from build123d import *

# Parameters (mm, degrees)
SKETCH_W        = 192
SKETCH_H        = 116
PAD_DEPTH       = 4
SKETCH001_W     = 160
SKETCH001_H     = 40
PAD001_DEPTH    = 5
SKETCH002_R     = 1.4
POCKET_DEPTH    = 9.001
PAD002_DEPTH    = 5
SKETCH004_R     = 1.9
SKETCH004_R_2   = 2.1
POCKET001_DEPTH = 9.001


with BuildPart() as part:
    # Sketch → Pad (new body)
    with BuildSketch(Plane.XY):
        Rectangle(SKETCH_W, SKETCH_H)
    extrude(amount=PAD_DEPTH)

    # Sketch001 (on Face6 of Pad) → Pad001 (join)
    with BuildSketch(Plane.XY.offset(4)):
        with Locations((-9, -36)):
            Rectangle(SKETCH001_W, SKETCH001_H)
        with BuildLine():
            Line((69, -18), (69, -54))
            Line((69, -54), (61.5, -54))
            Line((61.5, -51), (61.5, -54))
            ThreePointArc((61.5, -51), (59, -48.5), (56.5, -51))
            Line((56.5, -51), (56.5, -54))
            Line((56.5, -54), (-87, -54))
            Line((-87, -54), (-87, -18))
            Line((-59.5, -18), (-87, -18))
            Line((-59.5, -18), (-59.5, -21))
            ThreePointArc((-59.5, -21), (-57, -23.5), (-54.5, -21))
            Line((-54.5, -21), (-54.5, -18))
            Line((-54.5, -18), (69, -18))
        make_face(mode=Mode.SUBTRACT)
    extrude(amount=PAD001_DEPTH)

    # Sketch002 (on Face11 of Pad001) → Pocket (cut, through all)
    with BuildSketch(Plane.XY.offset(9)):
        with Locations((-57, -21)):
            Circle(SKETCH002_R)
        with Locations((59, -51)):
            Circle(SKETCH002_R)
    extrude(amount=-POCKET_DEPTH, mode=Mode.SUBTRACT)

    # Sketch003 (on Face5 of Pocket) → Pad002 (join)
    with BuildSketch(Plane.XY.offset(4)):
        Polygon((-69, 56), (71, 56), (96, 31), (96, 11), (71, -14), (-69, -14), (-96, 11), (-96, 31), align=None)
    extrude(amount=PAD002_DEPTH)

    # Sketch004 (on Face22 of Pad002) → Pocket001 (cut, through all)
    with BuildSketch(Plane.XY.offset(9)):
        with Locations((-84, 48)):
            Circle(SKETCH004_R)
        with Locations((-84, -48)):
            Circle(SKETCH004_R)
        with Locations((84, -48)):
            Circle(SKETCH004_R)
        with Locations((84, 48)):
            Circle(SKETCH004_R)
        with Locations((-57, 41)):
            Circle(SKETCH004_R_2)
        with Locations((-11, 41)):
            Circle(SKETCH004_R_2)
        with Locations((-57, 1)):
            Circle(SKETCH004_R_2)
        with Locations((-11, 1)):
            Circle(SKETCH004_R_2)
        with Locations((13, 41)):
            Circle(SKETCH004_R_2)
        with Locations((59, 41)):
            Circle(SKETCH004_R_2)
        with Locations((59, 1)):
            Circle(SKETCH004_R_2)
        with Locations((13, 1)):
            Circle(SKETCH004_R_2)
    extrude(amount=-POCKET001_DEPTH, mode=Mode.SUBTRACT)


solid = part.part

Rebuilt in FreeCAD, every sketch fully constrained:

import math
import FreeCAD as App
import Part
import Sketcher

doc = App.newDocument("Part")
body = doc.addObject("PartDesign::Body", "Body")

sketch1 = body.newObject("Sketcher::SketchObject", "Sketch")
sketch1.AttachmentSupport = (doc.getObject("XY_Plane"), [""])
sketch1.MapMode = "FlatFace"
sketch1.addGeometry([
    Part.LineSegment(App.Vector(-96, 58, 0), App.Vector(-96, -58, 0)),
    Part.LineSegment(App.Vector(-96, -58, 0), App.Vector(96, -58, 0)),
    Part.LineSegment(App.Vector(96, -58, 0), App.Vector(96, 58, 0)),
    Part.LineSegment(App.Vector(96, 58, 0), App.Vector(-96, 58, 0)),
], False)
sketch1.addConstraint([
    Sketcher.Constraint("Coincident", 0, 2, 1, 1),
    Sketcher.Constraint("Coincident", 1, 2, 2, 1),
    Sketcher.Constraint("Coincident", 2, 2, 3, 1),
    Sketcher.Constraint("Coincident", 3, 2, 0, 1),
    Sketcher.Constraint("Vertical", 0),
    Sketcher.Constraint("Horizontal", 1),
    Sketcher.Constraint("Vertical", 2),
    Sketcher.Constraint("Horizontal", 3),
    Sketcher.Constraint("Symmetric", 0, 2, 2, 2, -1, 1),
    Sketcher.Constraint("DistanceX", 1, 1, 1, 2, 192.0),
    Sketcher.Constraint("DistanceY", 0, 2, 0, 1, 116.0),
])
pad1 = body.newObject("PartDesign::Pad", "Pad")
pad1.Profile = sketch1
pad1.Length = 4

sketch2 = body.newObject("Sketcher::SketchObject", "Sketch001")
sketch2.AttachmentSupport = (doc.getObject("XY_Plane"), [""])
sketch2.MapMode = "FlatFace"
sketch2.AttachmentOffset = App.Placement(App.Vector(0, 0, 4), App.Rotation())
sketch2.addGeometry([
    Part.LineSegment(App.Vector(-89, -16, 0), App.Vector(-89, -56, 0)),
    Part.LineSegment(App.Vector(-89, -56, 0), App.Vector(71, -56, 0)),
    Part.LineSegment(App.Vector(71, -56, 0), App.Vector(71, -16, 0)),
    Part.LineSegment(App.Vector(71, -16, 0), App.Vector(-89, -16, 0)),
    Part.LineSegment(App.Vector(-54.5, -18, 0), App.Vector(69, -18, 0)),
    Part.LineSegment(App.Vector(69, -18, 0), App.Vector(69, -54, 0)),
    Part.LineSegment(App.Vector(69, -54, 0), App.Vector(61.5, -54, 0)),
    Part.LineSegment(App.Vector(61.5, -54, 0), App.Vector(61.5, -51, 0)),
    Part.ArcOfCircle(Part.Circle(App.Vector(59, -51, 0), App.Vector(0, 0, 1), 2.5), math.radians(0), math.radians(180)),
    Part.LineSegment(App.Vector(56.5, -51, 0), App.Vector(56.5, -54, 0)),
    Part.LineSegment(App.Vector(56.5, -54, 0), App.Vector(-87, -54, 0)),
    Part.LineSegment(App.Vector(-87, -54, 0), App.Vector(-87, -18, 0)),
    Part.LineSegment(App.Vector(-87, -18, 0), App.Vector(-59.5, -18, 0)),
    Part.LineSegment(App.Vector(-59.5, -18, 0), App.Vector(-59.5, -21, 0)),
    Part.ArcOfCircle(Part.Circle(App.Vector(-57, -21, 0), App.Vector(0, 0, 1), 2.5), math.radians(180), math.radians(360)),
    Part.LineSegment(App.Vector(-54.5, -21, 0), App.Vector(-54.5, -18, 0)),
], False)
sketch2.addConstraint([
    Sketcher.Constraint("Coincident", 0, 2, 1, 1),
    Sketcher.Constraint("Coincident", 1, 2, 2, 1),
    Sketcher.Constraint("Coincident", 2, 2, 3, 1),
    Sketcher.Constraint("Coincident", 3, 2, 0, 1),
    Sketcher.Constraint("Coincident", 4, 2, 5, 1),
    Sketcher.Constraint("Coincident", 5, 2, 6, 1),
    Sketcher.Constraint("Coincident", 6, 2, 7, 1),
    Sketcher.Constraint("Tangent", 7, 2, 8, 1),
    Sketcher.Constraint("Tangent", 8, 2, 9, 1),
    Sketcher.Constraint("Coincident", 9, 2, 10, 1),
    Sketcher.Constraint("Coincident", 10, 2, 11, 1),
    Sketcher.Constraint("Coincident", 11, 2, 12, 1),
    Sketcher.Constraint("Coincident", 12, 2, 13, 1),
    Sketcher.Constraint("Tangent", 13, 2, 14, 1),
    Sketcher.Constraint("Tangent", 14, 2, 15, 1),
    Sketcher.Constraint("Coincident", 15, 2, 4, 1),
    Sketcher.Constraint("Vertical", 0),
    Sketcher.Constraint("Horizontal", 1),
    Sketcher.Constraint("Vertical", 2),
    Sketcher.Constraint("Horizontal", 3),
    Sketcher.Constraint("Horizontal", 4),
    Sketcher.Constraint("Vertical", 5),
    Sketcher.Constraint("Horizontal", 6),
    Sketcher.Constraint("Vertical", 7),
    Sketcher.Constraint("Vertical", 9),
    Sketcher.Constraint("Horizontal", 10),
    Sketcher.Constraint("Vertical", 11),
    Sketcher.Constraint("Horizontal", 12),
    Sketcher.Constraint("Vertical", 13),
    Sketcher.Constraint("Vertical", 15),
    Sketcher.Constraint("Equal", 8, 14),
    Sketcher.Constraint("Horizontal", 6, 2, 9, 2),
    Sketcher.Constraint("Horizontal", 4, 2, 11, 2),
    Sketcher.Constraint("Equal", 9, 13),
    Sketcher.Constraint("Radius", 8, 2.5),
    Sketcher.Constraint("DistanceX", 1, 1, 1, 2, 160.0),
    Sketcher.Constraint("DistanceY", 0, 2, 0, 1, 40.0),
    Sketcher.Constraint("DistanceY", 5, 2, 5, 1, 36.0),
    Sketcher.Constraint("DistanceY", 7, 1, 7, 2, 3.0),
    Sketcher.Constraint("DistanceX", 4, 1, 4, 2, 123.5),
    Sketcher.Constraint("DistanceX", 6, 2, 6, 1, 7.5),
    Sketcher.Constraint("DistanceX", 10, 2, 10, 1, 143.5),
    Sketcher.Constraint("DistanceX", -1, 1, 8, 3, 59.0),
    Sketcher.Constraint("DistanceY", 8, 3, -1, 1, 51.0),
    Sketcher.Constraint("DistanceX", 0, 2, -1, 1, 89.0),
    Sketcher.Constraint("DistanceY", 0, 2, -1, 1, 56.0),
])
pad2 = body.newObject("PartDesign::Pad", "Pad001")
pad2.Profile = sketch2
pad2.Length = 5

sketch3 = body.newObject("Sketcher::SketchObject", "Sketch002")
sketch3.AttachmentSupport = (doc.getObject("XY_Plane"), [""])
sketch3.MapMode = "FlatFace"
sketch3.AttachmentOffset = App.Placement(App.Vector(0, 0, 9), App.Rotation())
sketch3.addGeometry([
    Part.Circle(App.Vector(-57, -21, 0), App.Vector(0, 0, 1), 1.4),
    Part.Circle(App.Vector(59, -51, 0), App.Vector(0, 0, 1), 1.4),
], False)
sketch3.addConstraint([
    Sketcher.Constraint("Equal", 0, 1),
    Sketcher.Constraint("Diameter", 0, 2.8),
    Sketcher.Constraint("DistanceX", 0, 3, -1, 1, 57.0),
    Sketcher.Constraint("DistanceY", 0, 3, -1, 1, 21.0),
    Sketcher.Constraint("DistanceX", -1, 1, 1, 3, 59.0),
    Sketcher.Constraint("DistanceY", 1, 3, -1, 1, 51.0),
])
pocket1 = body.newObject("PartDesign::Pocket", "Pocket")
pocket1.Profile = sketch3
pocket1.Type = "ThroughAll"

sketch4 = body.newObject("Sketcher::SketchObject", "Sketch003")
sketch4.AttachmentSupport = (doc.getObject("XY_Plane"), [""])
sketch4.MapMode = "FlatFace"
sketch4.AttachmentOffset = App.Placement(App.Vector(0, 0, 4), App.Rotation())
sketch4.addGeometry([
    Part.LineSegment(App.Vector(71, 56, 0), App.Vector(-69, 56, 0)),
    Part.LineSegment(App.Vector(-69, 56, 0), App.Vector(-96, 31, 0)),
    Part.LineSegment(App.Vector(-96, 31, 0), App.Vector(-96, 11, 0)),
    Part.LineSegment(App.Vector(-96, 11, 0), App.Vector(-69, -14, 0)),
    Part.LineSegment(App.Vector(-69, -14, 0), App.Vector(71, -14, 0)),
    Part.LineSegment(App.Vector(71, -14, 0), App.Vector(96, 11, 0)),
    Part.LineSegment(App.Vector(96, 11, 0), App.Vector(96, 31, 0)),
    Part.LineSegment(App.Vector(96, 31, 0), App.Vector(71, 56, 0)),
], False)
sketch4.addConstraint([
    Sketcher.Constraint("Coincident", 0, 2, 1, 1),
    Sketcher.Constraint("Coincident", 1, 2, 2, 1),
    Sketcher.Constraint("Coincident", 2, 2, 3, 1),
    Sketcher.Constraint("Coincident", 3, 2, 4, 1),
    Sketcher.Constraint("Coincident", 4, 2, 5, 1),
    Sketcher.Constraint("Coincident", 5, 2, 6, 1),
    Sketcher.Constraint("Coincident", 6, 2, 7, 1),
    Sketcher.Constraint("Coincident", 7, 2, 0, 1),
    Sketcher.Constraint("Horizontal", 0),
    Sketcher.Constraint("Vertical", 2),
    Sketcher.Constraint("Horizontal", 4),
    Sketcher.Constraint("Vertical", 6),
    Sketcher.Constraint("Symmetric", 2, 2, 5, 2, -2),
    Sketcher.Constraint("Perpendicular", 5, 7),
    Sketcher.Constraint("Horizontal", 1, 2, 6, 2),
    Sketcher.Constraint("Vertical", 0, 2, 3, 2),
    Sketcher.Constraint("Vertical", 4, 2, 7, 2),
    Sketcher.Constraint("Equal", 1, 3),
    Sketcher.Constraint("DistanceX", 0, 2, 0, 1, 140.0),
    Sketcher.Constraint("DistanceY", 2, 2, 2, 1, 20.0),
    Sketcher.Constraint("DistanceX", 0, 2, -1, 1, 69.0),
    Sketcher.Constraint("DistanceY", -1, 1, 0, 2, 56.0),
    Sketcher.Constraint("DistanceX", 1, 2, -1, 1, 96.0),
])
pad3 = body.newObject("PartDesign::Pad", "Pad002")
pad3.Profile = sketch4
pad3.Length = 5

sketch5 = body.newObject("Sketcher::SketchObject", "Sketch004")
sketch5.AttachmentSupport = (doc.getObject("XY_Plane"), [""])
sketch5.MapMode = "FlatFace"
sketch5.AttachmentOffset = App.Placement(App.Vector(0, 0, 9), App.Rotation())
sketch5.addGeometry([
    Part.Circle(App.Vector(-84, 48, 0), App.Vector(0, 0, 1), 1.9),
    Part.Circle(App.Vector(-84, -48, 0), App.Vector(0, 0, 1), 1.9),
    Part.Circle(App.Vector(84, -48, 0), App.Vector(0, 0, 1), 1.9),
    Part.Circle(App.Vector(84, 48, 0), App.Vector(0, 0, 1), 1.9),
    Part.Circle(App.Vector(-57, 41, 0), App.Vector(0, 0, 1), 2.1),
    Part.Circle(App.Vector(-11, 41, 0), App.Vector(0, 0, 1), 2.1),
    Part.Circle(App.Vector(-57, 1, 0), App.Vector(0, 0, 1), 2.1),
    Part.Circle(App.Vector(-11, 1, 0), App.Vector(0, 0, 1), 2.1),
    Part.Circle(App.Vector(13, 41, 0), App.Vector(0, 0, 1), 2.1),
    Part.Circle(App.Vector(59, 41, 0), App.Vector(0, 0, 1), 2.1),
    Part.Circle(App.Vector(59, 1, 0), App.Vector(0, 0, 1), 2.1),
    Part.Circle(App.Vector(13, 1, 0), App.Vector(0, 0, 1), 2.1),
], False)
sketch5.addConstraint([
    Sketcher.Constraint("Equal", 0, 1),
    Sketcher.Constraint("Equal", 1, 2),
    Sketcher.Constraint("Equal", 2, 3),
    Sketcher.Constraint("Equal", 4, 5),
    Sketcher.Constraint("Equal", 5, 6),
    Sketcher.Constraint("Equal", 6, 7),
    Sketcher.Constraint("Equal", 7, 8),
    Sketcher.Constraint("Equal", 8, 9),
    Sketcher.Constraint("Equal", 9, 10),
    Sketcher.Constraint("Equal", 10, 11),
    Sketcher.Constraint("Symmetric", 0, 3, 2, 3, -1, 1),
    Sketcher.Constraint("Symmetric", 1, 3, 3, 3, -1, 1),
    Sketcher.Constraint("Symmetric", 1, 3, 2, 3, -2),
    Sketcher.Constraint("Horizontal", 4, 3, 5, 3),
    Sketcher.Constraint("Horizontal", 6, 3, 7, 3),
    Sketcher.Constraint("Horizontal", 5, 3, 8, 3),
    Sketcher.Constraint("Horizontal", 8, 3, 9, 3),
    Sketcher.Constraint("Horizontal", 7, 3, 10, 3),
    Sketcher.Constraint("Horizontal", 10, 3, 11, 3),
    Sketcher.Constraint("Vertical", 4, 3, 6, 3),
    Sketcher.Constraint("Vertical", 5, 3, 7, 3),
    Sketcher.Constraint("Vertical", 9, 3, 10, 3),
    Sketcher.Constraint("Vertical", 8, 3, 11, 3),
    Sketcher.Constraint("Diameter", 0, 3.8),
    Sketcher.Constraint("Diameter", 4, 4.2),
    Sketcher.Constraint("DistanceX", 0, 3, -1, 1, 84.0),
    Sketcher.Constraint("DistanceY", -1, 1, 0, 3, 48.0),
    Sketcher.Constraint("DistanceX", 4, 3, -1, 1, 57.0),
    Sketcher.Constraint("DistanceY", -1, 1, 4, 3, 41.0),
    Sketcher.Constraint("DistanceX", 5, 3, -1, 1, 11.0),
    Sketcher.Constraint("DistanceY", -1, 1, 6, 3, 1.0),
    Sketcher.Constraint("DistanceX", -1, 1, 8, 3, 13.0),
    Sketcher.Constraint("DistanceX", -1, 1, 9, 3, 59.0),
])
pocket2 = body.newObject("PartDesign::Pocket", "Pocket001")
pocket2.Profile = sketch5
pocket2.Type = "ThroughAll"

doc.recompute()
